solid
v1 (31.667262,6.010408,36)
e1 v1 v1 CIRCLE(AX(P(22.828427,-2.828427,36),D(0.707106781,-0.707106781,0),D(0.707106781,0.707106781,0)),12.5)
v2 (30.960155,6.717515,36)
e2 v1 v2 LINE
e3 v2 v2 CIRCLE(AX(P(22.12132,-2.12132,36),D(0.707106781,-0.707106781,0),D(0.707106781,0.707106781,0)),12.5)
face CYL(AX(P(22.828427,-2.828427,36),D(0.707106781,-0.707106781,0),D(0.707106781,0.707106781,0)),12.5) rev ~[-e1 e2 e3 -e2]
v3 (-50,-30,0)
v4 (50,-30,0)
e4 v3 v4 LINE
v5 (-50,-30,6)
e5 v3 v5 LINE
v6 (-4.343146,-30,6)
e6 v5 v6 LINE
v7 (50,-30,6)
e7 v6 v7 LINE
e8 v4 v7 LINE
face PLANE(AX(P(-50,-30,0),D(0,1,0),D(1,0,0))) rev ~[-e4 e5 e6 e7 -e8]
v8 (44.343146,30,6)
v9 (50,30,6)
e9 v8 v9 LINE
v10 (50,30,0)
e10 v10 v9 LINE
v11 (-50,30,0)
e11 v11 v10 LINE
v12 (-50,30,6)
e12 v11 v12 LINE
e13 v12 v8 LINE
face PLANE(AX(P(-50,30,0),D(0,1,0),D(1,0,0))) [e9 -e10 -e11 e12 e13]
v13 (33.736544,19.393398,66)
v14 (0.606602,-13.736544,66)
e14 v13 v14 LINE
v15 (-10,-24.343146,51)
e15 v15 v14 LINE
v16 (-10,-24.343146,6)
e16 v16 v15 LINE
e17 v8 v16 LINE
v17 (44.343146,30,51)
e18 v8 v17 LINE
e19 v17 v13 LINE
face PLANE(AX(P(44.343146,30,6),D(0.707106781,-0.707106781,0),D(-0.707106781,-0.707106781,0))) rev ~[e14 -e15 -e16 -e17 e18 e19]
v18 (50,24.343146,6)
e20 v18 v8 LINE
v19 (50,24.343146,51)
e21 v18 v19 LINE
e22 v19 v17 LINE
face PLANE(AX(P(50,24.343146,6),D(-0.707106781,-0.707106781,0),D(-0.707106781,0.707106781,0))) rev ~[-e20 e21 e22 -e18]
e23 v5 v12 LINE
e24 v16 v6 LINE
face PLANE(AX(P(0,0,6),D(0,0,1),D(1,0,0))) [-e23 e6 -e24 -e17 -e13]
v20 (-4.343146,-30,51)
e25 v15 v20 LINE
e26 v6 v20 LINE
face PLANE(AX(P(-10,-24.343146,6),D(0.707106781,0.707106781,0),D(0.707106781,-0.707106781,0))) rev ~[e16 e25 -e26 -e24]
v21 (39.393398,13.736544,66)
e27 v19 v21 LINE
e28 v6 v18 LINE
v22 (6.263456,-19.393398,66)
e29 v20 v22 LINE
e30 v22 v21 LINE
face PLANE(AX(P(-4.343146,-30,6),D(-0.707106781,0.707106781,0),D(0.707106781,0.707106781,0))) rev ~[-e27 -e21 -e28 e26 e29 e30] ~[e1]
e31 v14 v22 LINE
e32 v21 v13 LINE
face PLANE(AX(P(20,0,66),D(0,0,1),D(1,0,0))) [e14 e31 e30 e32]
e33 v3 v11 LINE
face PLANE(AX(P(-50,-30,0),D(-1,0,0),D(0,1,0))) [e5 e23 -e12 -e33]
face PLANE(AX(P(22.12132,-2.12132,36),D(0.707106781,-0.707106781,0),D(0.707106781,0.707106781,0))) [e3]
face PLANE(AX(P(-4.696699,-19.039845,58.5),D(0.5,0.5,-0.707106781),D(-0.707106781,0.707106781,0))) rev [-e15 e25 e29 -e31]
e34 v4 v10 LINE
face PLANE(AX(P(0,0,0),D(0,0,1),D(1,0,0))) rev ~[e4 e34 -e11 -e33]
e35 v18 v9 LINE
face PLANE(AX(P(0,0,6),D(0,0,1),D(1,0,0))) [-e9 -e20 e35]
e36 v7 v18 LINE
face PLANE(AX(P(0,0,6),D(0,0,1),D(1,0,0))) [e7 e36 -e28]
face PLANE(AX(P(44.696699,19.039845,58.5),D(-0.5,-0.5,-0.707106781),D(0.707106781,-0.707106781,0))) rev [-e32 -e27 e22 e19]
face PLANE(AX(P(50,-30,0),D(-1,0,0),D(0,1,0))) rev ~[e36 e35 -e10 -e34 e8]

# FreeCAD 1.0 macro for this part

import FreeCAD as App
import Part
import Sketcher
from FreeCAD import Vector
Q = App.Units.Quantity


def edges_at(feature, points):
    """Names of the edges that pass closest to the given points."""
    edges = feature.Shape.Edges
    near = lambda p: min(range(len(edges)), key=lambda i: edges[i].distToShape(Part.Vertex(*p))[0])
    return sorted({f"Edge{near(p) + 1}" for p in points})


def add_polygon(sketch, points):
    """Adds a closed chain of lines whose ends are joined by coincident constraints."""
    first, n = sketch.GeometryCount, len(points)
    for a, b in zip(points, points[1:] + points[:1]):
        sketch.addGeometry(Part.LineSegment(App.Vector(*a, 0), App.Vector(*b, 0)), False)
    for i in range(n):
        sketch.addConstraint(Sketcher.Constraint("Coincident", first + i, 2, first + (i + 1) % n, 1))

doc = App.newDocument("Part")
params = doc.addObject("Spreadsheet::Sheet", "Params")
for row, (alias, value) in enumerate([
    ("sketch1_width", "100 mm"),
    ("sketch1_height", "60 mm"),
    ("pad1_length", "6 mm"),
    ("sketch2_length", "8 mm"),
    ("pad2_length", "60 mm"),
    ("sketch3_diameter", "25 mm"),
    ("pocket1_length", "1 mm"),
    ("chamfer_size", "15 mm"),
], start=1):
    params.set(f"A{row}", alias)
    params.set(f"B{row}", "=" + value)
    params.setAlias(f"B{row}", alias)

body = doc.addObject("PartDesign::Body", "Body")

# Sketch on XY plane
sketch1 = doc.addObject("Sketcher::SketchObject", "Sketch")
body.addObject(sketch1)
sketch1.AttachmentSupport = (doc.XY_Plane, [""])
sketch1.MapMode = "FlatFace"
add_polygon(sketch1, [(-50, 30), (-50, -30), (50, -30), (50, 30)])  # lines 0-3
sketch1.addConstraint([
    Sketcher.Constraint("Vertical", 0),
    Sketcher.Constraint("Horizontal", 1),
    Sketcher.Constraint("Vertical", 2),
    Sketcher.Constraint("Horizontal", 3),
    Sketcher.Constraint("Symmetric", 0, 2, 2, 2, -1, 1),
    Sketcher.Constraint("DistanceX", 1, 1, 1, 2, Q("100 mm")),
    Sketcher.Constraint("DistanceY", 0, 2, 0, 1, Q("60 mm")),
])
sketch1.setExpression("Constraints[9]", "Params.sketch1_width")
sketch1.setExpression("Constraints[10]", "Params.sketch1_height")
pad1 = doc.addObject("PartDesign::Pad", "Pad")
body.addObject(pad1)
pad1.Profile = sketch1
pad1.setExpression("Length", "Params.pad1_length")

# Sketch on XY plane
sketch2 = doc.addObject("Sketcher::SketchObject", "Sketch001")
body.addObject(sketch2)
sketch2.AttachmentSupport = (doc.XY_Plane, [""])
sketch2.MapMode = "FlatFace"
sketch2.AttachmentOffset = App.Placement(Vector(0, 0, 6), App.Rotation())
add_polygon(sketch2, [(44, 30), (-10, -24), (-4, -30), (50, 24)])  # lines 0-3
sketch2.addConstraint([
    Sketcher.Constraint("Perpendicular", 0, 1),
    Sketcher.Constraint("Perpendicular", 1, 2),
    Sketcher.Constraint("Perpendicular", 2, 3),
    Sketcher.Constraint("Angle", 0, Q("-135 deg")),
    Sketcher.Constraint("Distance", 1, Q("8 mm")),
    Sketcher.Constraint("DistanceX", 0, 2, -1, 1, Q("10 mm")),
    Sketcher.Constraint("DistanceY", 1, 2, -1, 1, Q("30 mm")),
    Sketcher.Constraint("DistanceX", -1, 1, 2, 2, Q("50 mm")),
])
sketch2.setExpression("Constraints[8]", "Params.sketch2_length")
pad2 = doc.addObject("PartDesign::Pad", "Pad001")
body.addObject(pad2)
pad2.Profile = sketch2
pad2.setExpression("Length", "Params.pad2_length")

# Sketch on an angled plane
sketch3 = doc.addObject("Sketcher::SketchObject", "Sketch002")
body.addObject(sketch3)
sketch3.Placement = App.Placement(Vector(12.828427, -12.828427, 0), App.Rotation(Vector(0.707106781, 0.707106781, 0), Vector(0, 0, 0.999999999), Vector(0.707106781, -0.707106781, 0), "ZXY"))
sketch3.addGeometry(Part.Circle(Vector(14, 36, 0), Vector(0, 0, 1), 12), False)
sketch3.addConstraint([
    Sketcher.Constraint("Diameter", 0, Q("25 mm")),
    Sketcher.Constraint("DistanceY", -1, 1, 0, 3, Q("36 mm")),
    Sketcher.Constraint("DistanceX", -1, 1, 0, 3, Q("14.142136 mm")),
])
sketch3.setExpression("Constraints[0]", "Params.sketch3_diameter")
pocket1 = doc.addObject("PartDesign::Pocket", "Pocket")
body.addObject(pocket1)
pocket1.Profile = sketch3
pocket1.setExpression("Length", "Params.pocket1_length")
doc.recompute()

chamfer = doc.addObject("PartDesign::Chamfer", "Chamfer")
body.addObject(chamfer)
chamfer.Base = (pocket1, edges_at(pocket1, [(-7.172, -27.172, 66), (47.172, 27.172, 66)]))
chamfer.setExpression("Size", "Params.chamfer_size")

doc.recompute()
